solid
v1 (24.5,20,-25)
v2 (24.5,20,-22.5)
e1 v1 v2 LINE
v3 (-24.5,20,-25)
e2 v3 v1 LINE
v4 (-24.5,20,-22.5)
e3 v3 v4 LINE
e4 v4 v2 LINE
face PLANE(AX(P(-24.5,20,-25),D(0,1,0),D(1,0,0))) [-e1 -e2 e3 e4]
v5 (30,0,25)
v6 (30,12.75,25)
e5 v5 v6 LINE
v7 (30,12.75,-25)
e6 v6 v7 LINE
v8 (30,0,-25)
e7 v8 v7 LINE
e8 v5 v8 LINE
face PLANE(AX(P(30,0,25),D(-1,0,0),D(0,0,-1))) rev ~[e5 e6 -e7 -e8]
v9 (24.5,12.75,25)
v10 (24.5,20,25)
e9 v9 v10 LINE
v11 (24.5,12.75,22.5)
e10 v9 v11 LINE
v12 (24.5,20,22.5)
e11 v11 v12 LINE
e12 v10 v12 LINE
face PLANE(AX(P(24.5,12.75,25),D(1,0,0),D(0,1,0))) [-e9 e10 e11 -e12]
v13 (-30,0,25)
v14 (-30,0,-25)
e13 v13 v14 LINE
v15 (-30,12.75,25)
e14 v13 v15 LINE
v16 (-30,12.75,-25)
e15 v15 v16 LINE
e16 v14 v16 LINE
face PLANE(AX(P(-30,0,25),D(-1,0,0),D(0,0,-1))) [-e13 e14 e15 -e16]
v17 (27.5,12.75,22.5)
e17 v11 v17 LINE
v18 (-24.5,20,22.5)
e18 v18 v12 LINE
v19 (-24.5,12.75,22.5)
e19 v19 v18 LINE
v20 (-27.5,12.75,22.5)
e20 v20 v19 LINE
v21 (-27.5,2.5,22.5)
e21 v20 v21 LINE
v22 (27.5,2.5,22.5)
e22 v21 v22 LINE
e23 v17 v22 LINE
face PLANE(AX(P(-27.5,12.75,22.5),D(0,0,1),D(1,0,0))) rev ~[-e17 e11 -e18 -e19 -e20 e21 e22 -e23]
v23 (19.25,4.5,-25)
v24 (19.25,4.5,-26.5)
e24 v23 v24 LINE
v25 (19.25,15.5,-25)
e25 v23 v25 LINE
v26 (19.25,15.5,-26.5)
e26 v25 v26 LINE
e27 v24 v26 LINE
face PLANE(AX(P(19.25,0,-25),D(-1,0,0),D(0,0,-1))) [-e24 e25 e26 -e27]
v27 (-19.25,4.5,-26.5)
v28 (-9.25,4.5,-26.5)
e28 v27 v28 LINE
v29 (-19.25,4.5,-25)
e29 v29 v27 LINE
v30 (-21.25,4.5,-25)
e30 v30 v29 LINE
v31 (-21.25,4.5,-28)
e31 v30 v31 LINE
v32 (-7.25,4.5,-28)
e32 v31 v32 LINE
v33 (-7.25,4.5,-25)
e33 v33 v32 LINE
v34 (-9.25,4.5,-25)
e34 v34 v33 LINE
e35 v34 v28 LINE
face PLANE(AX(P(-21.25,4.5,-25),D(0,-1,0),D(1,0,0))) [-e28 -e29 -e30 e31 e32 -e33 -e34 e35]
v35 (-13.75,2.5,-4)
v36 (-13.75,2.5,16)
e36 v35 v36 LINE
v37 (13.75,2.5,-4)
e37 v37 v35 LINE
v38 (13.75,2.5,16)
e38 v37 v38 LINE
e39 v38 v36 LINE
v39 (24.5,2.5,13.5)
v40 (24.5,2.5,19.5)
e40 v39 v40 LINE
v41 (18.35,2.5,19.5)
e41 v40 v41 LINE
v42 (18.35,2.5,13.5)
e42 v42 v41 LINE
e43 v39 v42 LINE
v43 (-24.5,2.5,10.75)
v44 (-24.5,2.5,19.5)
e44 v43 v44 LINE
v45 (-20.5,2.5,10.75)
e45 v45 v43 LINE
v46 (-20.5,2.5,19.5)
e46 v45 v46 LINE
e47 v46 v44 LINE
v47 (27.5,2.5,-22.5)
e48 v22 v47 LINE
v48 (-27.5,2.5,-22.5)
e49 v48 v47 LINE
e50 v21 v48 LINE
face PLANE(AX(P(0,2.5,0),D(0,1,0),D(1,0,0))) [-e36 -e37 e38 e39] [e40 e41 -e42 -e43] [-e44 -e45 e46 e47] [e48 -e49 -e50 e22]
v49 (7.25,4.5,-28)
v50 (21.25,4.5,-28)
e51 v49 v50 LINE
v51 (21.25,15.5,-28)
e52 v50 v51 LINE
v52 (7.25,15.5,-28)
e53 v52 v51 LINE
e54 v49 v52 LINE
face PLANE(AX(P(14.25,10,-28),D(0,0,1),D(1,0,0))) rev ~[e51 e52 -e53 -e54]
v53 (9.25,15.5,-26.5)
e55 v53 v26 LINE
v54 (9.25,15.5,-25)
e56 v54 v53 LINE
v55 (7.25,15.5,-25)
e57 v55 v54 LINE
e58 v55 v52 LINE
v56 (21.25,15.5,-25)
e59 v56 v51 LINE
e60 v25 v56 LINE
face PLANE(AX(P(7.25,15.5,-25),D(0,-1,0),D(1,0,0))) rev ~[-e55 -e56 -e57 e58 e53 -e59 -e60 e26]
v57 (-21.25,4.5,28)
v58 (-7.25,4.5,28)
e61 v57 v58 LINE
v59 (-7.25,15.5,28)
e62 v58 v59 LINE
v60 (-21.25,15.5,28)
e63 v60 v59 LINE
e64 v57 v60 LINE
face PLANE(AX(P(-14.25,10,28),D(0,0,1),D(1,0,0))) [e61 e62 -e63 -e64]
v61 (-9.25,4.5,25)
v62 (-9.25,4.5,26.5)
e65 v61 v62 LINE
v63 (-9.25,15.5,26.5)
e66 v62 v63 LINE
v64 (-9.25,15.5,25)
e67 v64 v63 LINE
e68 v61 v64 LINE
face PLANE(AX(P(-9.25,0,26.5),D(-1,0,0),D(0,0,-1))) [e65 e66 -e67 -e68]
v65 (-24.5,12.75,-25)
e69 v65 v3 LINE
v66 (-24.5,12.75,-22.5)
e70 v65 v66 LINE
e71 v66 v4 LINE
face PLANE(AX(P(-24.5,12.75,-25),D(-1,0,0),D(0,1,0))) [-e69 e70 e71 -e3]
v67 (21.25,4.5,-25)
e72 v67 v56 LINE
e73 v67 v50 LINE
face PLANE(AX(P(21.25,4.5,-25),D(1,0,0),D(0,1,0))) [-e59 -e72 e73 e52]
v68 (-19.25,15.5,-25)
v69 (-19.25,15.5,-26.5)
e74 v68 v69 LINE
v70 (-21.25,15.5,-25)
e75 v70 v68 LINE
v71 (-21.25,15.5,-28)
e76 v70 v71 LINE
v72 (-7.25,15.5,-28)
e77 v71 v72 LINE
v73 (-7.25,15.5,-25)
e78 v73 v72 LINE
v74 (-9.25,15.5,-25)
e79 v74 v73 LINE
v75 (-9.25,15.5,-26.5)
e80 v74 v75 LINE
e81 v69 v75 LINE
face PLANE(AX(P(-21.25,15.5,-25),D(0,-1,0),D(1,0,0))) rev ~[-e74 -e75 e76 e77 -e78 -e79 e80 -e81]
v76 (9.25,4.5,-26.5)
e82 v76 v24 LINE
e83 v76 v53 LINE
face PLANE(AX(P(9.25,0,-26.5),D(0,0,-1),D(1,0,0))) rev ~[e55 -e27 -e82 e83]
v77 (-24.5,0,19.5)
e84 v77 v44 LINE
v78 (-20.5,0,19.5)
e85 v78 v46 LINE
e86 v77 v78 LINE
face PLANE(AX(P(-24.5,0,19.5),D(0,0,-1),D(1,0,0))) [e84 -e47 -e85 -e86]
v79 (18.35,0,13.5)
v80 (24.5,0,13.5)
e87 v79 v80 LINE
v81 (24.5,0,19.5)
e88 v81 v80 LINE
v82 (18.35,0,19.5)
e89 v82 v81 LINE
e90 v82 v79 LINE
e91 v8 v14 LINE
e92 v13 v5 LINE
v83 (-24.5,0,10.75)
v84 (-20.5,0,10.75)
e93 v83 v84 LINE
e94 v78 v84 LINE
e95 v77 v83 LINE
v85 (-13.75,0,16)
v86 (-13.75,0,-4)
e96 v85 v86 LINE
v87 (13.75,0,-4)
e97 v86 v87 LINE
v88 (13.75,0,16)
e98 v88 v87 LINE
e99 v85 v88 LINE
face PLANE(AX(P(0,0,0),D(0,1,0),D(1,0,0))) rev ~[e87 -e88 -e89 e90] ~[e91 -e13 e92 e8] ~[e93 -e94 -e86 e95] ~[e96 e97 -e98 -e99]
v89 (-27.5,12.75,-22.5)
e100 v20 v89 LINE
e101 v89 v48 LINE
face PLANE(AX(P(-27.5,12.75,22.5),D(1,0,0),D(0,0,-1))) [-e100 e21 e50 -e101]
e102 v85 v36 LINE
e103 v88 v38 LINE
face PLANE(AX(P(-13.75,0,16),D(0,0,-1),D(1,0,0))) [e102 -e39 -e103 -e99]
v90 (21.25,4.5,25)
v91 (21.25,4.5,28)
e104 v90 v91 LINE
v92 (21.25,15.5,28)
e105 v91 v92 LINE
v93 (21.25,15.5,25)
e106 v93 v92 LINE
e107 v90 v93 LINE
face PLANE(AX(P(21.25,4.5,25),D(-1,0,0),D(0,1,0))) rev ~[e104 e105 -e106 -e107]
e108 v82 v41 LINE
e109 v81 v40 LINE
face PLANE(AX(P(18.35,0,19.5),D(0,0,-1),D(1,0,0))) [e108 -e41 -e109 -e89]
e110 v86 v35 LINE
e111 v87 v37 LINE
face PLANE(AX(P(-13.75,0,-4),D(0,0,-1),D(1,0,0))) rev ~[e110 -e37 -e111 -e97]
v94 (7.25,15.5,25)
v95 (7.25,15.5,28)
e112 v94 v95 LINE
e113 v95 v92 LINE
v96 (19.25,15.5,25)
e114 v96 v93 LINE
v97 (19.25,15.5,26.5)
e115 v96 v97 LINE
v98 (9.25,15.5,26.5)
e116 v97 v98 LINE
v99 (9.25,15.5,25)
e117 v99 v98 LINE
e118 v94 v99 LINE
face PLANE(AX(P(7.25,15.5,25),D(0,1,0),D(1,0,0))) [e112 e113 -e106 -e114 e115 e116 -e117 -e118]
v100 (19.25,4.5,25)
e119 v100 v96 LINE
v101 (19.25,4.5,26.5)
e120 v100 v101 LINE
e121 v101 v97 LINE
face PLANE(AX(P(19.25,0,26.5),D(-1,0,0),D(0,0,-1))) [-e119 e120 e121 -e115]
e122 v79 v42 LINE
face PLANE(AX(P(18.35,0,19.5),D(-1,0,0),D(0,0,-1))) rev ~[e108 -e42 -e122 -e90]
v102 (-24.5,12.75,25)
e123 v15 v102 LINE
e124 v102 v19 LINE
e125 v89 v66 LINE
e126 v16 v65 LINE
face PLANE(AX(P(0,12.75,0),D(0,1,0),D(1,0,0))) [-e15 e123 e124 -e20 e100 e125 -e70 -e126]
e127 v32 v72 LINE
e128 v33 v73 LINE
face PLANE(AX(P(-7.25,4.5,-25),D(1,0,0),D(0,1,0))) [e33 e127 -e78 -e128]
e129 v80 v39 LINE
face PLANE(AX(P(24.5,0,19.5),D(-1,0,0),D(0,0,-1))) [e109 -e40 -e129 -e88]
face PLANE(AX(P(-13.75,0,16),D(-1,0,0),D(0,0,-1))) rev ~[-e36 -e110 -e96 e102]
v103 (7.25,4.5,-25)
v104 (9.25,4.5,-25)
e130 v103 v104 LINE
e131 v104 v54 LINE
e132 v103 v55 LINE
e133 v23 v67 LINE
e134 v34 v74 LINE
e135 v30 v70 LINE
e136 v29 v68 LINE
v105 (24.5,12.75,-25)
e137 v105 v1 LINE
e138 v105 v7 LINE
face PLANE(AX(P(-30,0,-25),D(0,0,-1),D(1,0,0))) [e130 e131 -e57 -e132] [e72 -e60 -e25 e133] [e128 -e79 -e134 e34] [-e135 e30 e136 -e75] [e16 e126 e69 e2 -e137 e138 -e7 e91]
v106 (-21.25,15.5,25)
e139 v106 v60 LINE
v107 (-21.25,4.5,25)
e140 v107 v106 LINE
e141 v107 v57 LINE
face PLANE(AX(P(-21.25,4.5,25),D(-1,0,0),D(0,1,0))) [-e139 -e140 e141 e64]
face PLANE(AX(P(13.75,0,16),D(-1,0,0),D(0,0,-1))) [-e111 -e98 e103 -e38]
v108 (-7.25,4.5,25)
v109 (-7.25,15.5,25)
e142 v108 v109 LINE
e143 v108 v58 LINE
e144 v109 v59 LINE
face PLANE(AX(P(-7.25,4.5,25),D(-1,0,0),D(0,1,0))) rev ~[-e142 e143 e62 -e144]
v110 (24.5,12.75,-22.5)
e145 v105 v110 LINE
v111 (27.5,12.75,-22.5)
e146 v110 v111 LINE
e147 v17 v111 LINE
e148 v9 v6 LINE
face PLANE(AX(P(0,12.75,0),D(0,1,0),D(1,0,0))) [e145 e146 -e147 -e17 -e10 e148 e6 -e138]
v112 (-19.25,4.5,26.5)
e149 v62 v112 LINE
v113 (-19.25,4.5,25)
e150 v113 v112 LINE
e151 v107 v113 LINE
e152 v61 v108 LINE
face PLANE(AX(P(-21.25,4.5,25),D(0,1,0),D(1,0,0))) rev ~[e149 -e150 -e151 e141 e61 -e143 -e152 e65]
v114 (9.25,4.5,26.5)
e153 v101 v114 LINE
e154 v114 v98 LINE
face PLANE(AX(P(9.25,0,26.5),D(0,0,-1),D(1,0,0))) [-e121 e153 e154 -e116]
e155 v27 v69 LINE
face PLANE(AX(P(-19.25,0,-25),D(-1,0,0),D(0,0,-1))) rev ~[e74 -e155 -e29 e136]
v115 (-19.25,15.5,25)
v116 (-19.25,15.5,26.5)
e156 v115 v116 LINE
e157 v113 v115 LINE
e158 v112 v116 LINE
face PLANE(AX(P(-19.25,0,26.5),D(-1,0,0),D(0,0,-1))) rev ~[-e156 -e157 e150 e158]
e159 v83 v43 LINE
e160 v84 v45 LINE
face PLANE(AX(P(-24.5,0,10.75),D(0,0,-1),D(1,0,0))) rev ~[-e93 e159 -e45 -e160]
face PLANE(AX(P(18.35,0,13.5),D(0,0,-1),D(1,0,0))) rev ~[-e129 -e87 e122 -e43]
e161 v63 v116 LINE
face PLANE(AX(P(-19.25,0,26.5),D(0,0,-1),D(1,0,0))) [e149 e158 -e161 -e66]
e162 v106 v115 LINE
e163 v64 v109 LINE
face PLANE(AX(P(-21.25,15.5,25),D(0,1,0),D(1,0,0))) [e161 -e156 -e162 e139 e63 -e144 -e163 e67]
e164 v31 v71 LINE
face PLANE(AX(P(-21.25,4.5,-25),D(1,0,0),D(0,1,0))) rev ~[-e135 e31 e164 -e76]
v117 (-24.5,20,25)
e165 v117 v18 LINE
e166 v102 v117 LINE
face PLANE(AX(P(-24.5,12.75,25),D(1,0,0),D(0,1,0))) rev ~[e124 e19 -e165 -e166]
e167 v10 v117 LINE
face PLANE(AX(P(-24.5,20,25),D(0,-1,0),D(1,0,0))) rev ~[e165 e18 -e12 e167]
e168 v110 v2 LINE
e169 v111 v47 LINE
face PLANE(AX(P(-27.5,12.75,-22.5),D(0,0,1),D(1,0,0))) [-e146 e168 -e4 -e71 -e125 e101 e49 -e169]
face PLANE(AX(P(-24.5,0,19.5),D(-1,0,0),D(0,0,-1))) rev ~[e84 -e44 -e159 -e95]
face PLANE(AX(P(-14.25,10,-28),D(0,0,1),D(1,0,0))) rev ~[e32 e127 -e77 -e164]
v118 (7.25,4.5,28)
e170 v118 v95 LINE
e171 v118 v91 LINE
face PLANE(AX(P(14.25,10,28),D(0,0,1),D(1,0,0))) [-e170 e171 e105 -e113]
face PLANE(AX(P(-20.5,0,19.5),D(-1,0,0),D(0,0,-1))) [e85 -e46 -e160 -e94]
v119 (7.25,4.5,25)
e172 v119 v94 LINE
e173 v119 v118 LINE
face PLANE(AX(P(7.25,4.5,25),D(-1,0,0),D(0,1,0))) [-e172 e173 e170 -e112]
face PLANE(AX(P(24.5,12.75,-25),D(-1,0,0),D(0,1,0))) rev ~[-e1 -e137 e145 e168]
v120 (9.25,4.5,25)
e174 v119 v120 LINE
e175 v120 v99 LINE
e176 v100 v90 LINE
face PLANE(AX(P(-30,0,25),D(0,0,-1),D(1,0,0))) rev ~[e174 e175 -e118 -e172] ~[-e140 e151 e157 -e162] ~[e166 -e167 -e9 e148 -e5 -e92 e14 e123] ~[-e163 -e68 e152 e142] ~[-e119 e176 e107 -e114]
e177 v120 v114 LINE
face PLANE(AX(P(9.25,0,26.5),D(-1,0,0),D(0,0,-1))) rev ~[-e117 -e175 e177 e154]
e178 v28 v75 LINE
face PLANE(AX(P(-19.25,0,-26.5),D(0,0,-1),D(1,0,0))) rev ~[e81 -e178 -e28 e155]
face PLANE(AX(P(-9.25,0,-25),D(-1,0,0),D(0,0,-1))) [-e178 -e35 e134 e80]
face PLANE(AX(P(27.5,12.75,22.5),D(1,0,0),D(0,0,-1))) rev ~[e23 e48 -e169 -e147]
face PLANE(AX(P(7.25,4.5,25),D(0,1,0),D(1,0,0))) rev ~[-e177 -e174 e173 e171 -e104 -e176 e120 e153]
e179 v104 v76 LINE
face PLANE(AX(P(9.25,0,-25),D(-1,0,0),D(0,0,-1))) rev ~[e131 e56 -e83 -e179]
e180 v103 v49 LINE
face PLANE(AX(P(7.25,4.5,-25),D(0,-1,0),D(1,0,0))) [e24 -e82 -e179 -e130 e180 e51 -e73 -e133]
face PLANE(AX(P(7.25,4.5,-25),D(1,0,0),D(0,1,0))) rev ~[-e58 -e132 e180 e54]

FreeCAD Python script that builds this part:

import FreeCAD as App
import Part
import Sketcher
from FreeCAD import Vector
Q = App.Units.Quantity


def add_polygon(sketch, points):
    """Adds a closed chain of lines whose ends are joined by coincident constraints."""
    first, n = sketch.GeometryCount, len(points)
    for a, b in zip(points, points[1:] + points[:1]):
        sketch.addGeometry(Part.LineSegment(App.Vector(*a, 0), App.Vector(*b, 0)), False)
    for i in range(n):
        sketch.addConstraint(Sketcher.Constraint("Coincident", first + i, 2, first + (i + 1) % n, 1))

doc = App.newDocument("Part")
body = doc.addObject("PartDesign::Body", "Body")

# Sketch on XZ plane
sketch1 = body.newObject("Sketcher::SketchObject", "Sketch")
sketch1.AttachmentSupport = (doc.getObject("XZ_Plane"), [""])
sketch1.MapMode = "FlatFace"
add_polygon(sketch1, [(-30, -25), (-30, 25), (30, 25), (30, -25)])  # lines 0-3
sketch1.addConstraint(Sketcher.Constraint("Vertical", 0))
sketch1.addConstraint(Sketcher.Constraint("Horizontal", 1))
sketch1.addConstraint(Sketcher.Constraint("Vertical", 2))
sketch1.addConstraint(Sketcher.Constraint("Horizontal", 3))
sketch1.addConstraint(Sketcher.Constraint("Symmetric", 0, 2, 2, 2, -1, 1))
sketch1.addConstraint(Sketcher.Constraint("DistanceX", 1, 1, 1, 2, Q("60 mm")))
sketch1.addConstraint(Sketcher.Constraint("DistanceY", 0, 1, 0, 2, Q("50 mm")))
pad1 = body.newObject("PartDesign::Pad", "Pad")
pad1.Profile = sketch1
pad1.Length = 12.75
pad1.Reversed = True

# Sketch on XZ plane
sketch2 = body.newObject("Sketcher::SketchObject", "Sketch001")
sketch2.AttachmentSupport = (doc.getObject("XZ_Plane"), [""])
sketch2.MapMode = "FlatFace"
sketch2.AttachmentOffset = App.Placement(Vector(0, 0, -12.75), App.Rotation())
add_polygon(sketch2, [(-28, -22), (-28, 22), (28, 22), (28, -22)])  # lines 0-3
sketch2.addConstraint(Sketcher.Constraint("Vertical", 0))
sketch2.addConstraint(Sketcher.Constraint("Horizontal", 1))
sketch2.addConstraint(Sketcher.Constraint("Vertical", 2))
sketch2.addConstraint(Sketcher.Constraint("Horizontal", 3))
sketch2.addConstraint(Sketcher.Constraint("Symmetric", 0, 2, 2, 2, -1, 1))
sketch2.addConstraint(Sketcher.Constraint("DistanceX", 1, 1, 1, 2, Q("55 mm")))
sketch2.addConstraint(Sketcher.Constraint("DistanceY", 0, 1, 0, 2, Q("45 mm")))
pocket1 = body.newObject("PartDesign::Pocket", "Pocket")
pocket1.Profile = sketch2
pocket1.Length = 10.25
pocket1.Reversed = True

# Sketch on XY plane
sketch3 = body.newObject("Sketcher::SketchObject", "Sketch002")
sketch3.AttachmentSupport = (doc.getObject("XY_Plane"), [""])
sketch3.MapMode = "FlatFace"
sketch3.AttachmentOffset = App.Placement(Vector(0, 0, 25), App.Rotation())
add_polygon(sketch3, [(-24, 20), (-24, 13), (24, 13), (24, 20)])  # lines 0-3
sketch3.addConstraint(Sketcher.Constraint("Vertical", 0))
sketch3.addConstraint(Sketcher.Constraint("Horizontal", 1))
sketch3.addConstraint(Sketcher.Constraint("Vertical", 2))
sketch3.addConstraint(Sketcher.Constraint("Horizontal", 3))
sketch3.addConstraint(Sketcher.Constraint("DistanceX", 1, 1, 1, 2, Q("49 mm")))
sketch3.addConstraint(Sketcher.Constraint("DistanceY", -1, 1, 2, 2, Q("20 mm")))
sketch3.addConstraint(Sketcher.Constraint("DistanceY", 0, 2, 0, 1, Q("7.25 mm")))
sketch3.addConstraint(Sketcher.Constraint("DistanceX", 0, 2, -1, 1, Q("24.5 mm")))
pad2 = body.newObject("PartDesign::Pad", "Pad001")
pad2.Profile = sketch3
pad2.Length = 2.5
pad2.Reversed = True

# Sketch on XY plane
sketch4 = body.newObject("Sketcher::SketchObject", "Sketch003")
sketch4.AttachmentSupport = (doc.getObject("XY_Plane"), [""])
sketch4.MapMode = "FlatFace"
sketch4.AttachmentOffset = App.Placement(Vector(0, 0, -25), App.Rotation())
add_polygon(sketch4, [(-24, 20), (-24, 13), (24, 13), (24, 20)])  # lines 0-3
sketch4.addConstraint(Sketcher.Constraint("Vertical", 0))
sketch4.addConstraint(Sketcher.Constraint("Horizontal", 1))
sketch4.addConstraint(Sketcher.Constraint("Vertical", 2))
sketch4.addConstraint(Sketcher.Constraint("Horizontal", 3))
sketch4.addConstraint(Sketcher.Constraint("DistanceX", 1, 1, 1, 2, Q("49 mm")))
sketch4.addConstraint(Sketcher.Constraint("DistanceY", -1, 1, 2, 2, Q("20 mm")))
sketch4.addConstraint(Sketcher.Constraint("DistanceY", 0, 2, 0, 1, Q("7.25 mm")))
sketch4.addConstraint(Sketcher.Constraint("DistanceX", 0, 2, -1, 1, Q("24.5 mm")))
pad3 = body.newObject("PartDesign::Pad", "Pad002")
pad3.Profile = sketch4
pad3.Length = 2.5

# Sketch on XZ plane
sketch5 = body.newObject("Sketcher::SketchObject", "Sketch004")
sketch5.AttachmentSupport = (doc.getObject("XZ_Plane"), [""])
sketch5.MapMode = "FlatFace"
add_polygon(sketch5, [(-14, -4), (-14, 16), (14, 16), (14, -4)])  # lines 0-3
sketch5.addConstraint(Sketcher.Constraint("Vertical", 0))
sketch5.addConstraint(Sketcher.Constraint("Horizontal", 1))
sketch5.addConstraint(Sketcher.Constraint("Vertical", 2))
sketch5.addConstraint(Sketcher.Constraint("Horizontal", 3))
sketch5.addConstraint(Sketcher.Constraint("DistanceY", 0, 1, 0, 2, Q("20 mm")))
sketch5.addConstraint(Sketcher.Constraint("DistanceX", 1, 1, 1, 2, Q("27.5 mm")))
sketch5.addConstraint(Sketcher.Constraint("DistanceY", -1, 1, 0, 2, Q("16 mm")))
sketch5.addConstraint(Sketcher.Constraint("DistanceX", 0, 2, -1, 1, Q("13.75 mm")))
pocket2 = body.newObject("PartDesign::Pocket", "Pocket001")
pocket2.Profile = sketch5
pocket2.Length = 10

# Sketch on XY plane
sketch6 = body.newObject("Sketcher::SketchObject", "Sketch005")
sketch6.AttachmentSupport = (doc.getObject("XY_Plane"), [""])
sketch6.MapMode = "FlatFace"
sketch6.AttachmentOffset = App.Placement(Vector(0, 0, 25), App.Rotation())
add_polygon(sketch6, [(-21, 16), (-21, 4), (-7, 4), (-7, 16)])  # lines 0-3
add_polygon(sketch6, [(7, 16), (7, 4), (21, 4), (21, 16)])  # lines 4-7
sketch6.addConstraint(Sketcher.Constraint("Vertical", 0))
sketch6.addConstraint(Sketcher.Constraint("Horizontal", 1))
sketch6.addConstraint(Sketcher.Constraint("Vertical", 2))
sketch6.addConstraint(Sketcher.Constraint("Horizontal", 3))
sketch6.addConstraint(Sketcher.Constraint("Vertical", 4))
sketch6.addConstraint(Sketcher.Constraint("Horizontal", 5))
sketch6.addConstraint(Sketcher.Constraint("Vertical", 6))
sketch6.addConstraint(Sketcher.Constraint("Horizontal", 7))
sketch6.addConstraint(Sketcher.Constraint("Symmetric", 1, 2, 4, 2, -2))
sketch6.addConstraint(Sketcher.Constraint("Symmetric", 3, 2, 6, 2, -2))
sketch6.addConstraint(Sketcher.Constraint("DistanceX", 1, 1, 1, 2, Q("14 mm")))
sketch6.addConstraint(Sketcher.Constraint("DistanceY", 0, 2, 0, 1, Q("11 mm")))
sketch6.addConstraint(Sketcher.Constraint("DistanceY", -1, 1, 0, 2, Q("4.5 mm")))
sketch6.addConstraint(Sketcher.Constraint("DistanceX", 1, 2, 4, 2, Q("14.5 mm")))
pad4 = body.newObject("PartDesign::Pad", "Pad003")
pad4.Profile = sketch6
pad4.Length = 3

# Sketch on XY plane
sketch7 = body.newObject("Sketcher::SketchObject", "Sketch006")
sketch7.AttachmentSupport = (doc.getObject("XY_Plane"), [""])
sketch7.MapMode = "FlatFace"
sketch7.AttachmentOffset = App.Placement(Vector(0, 0, -25), App.Rotation())
add_polygon(sketch7, [(-21, 16), (-21, 4), (-7, 4), (-7, 16)])  # lines 0-3
add_polygon(sketch7, [(7, 16), (7, 4), (21, 4), (21, 16)])  # lines 4-7
sketch7.addConstraint(Sketcher.Constraint("Vertical", 0))
sketch7.addConstraint(Sketcher.Constraint("Horizontal", 1))
sketch7.addConstraint(Sketcher.Constraint("Vertical", 2))
sketch7.addConstraint(Sketcher.Constraint("Horizontal", 3))
sketch7.addConstraint(Sketcher.Constraint("Vertical", 4))
sketch7.addConstraint(Sketcher.Constraint("Horizontal", 5))
sketch7.addConstraint(Sketcher.Constraint("Vertical", 6))
sketch7.addConstraint(Sketcher.Constraint("Horizontal", 7))
sketch7.addConstraint(Sketcher.Constraint("Symmetric", 1, 2, 4, 2, -2))
sketch7.addConstraint(Sketcher.Constraint("Symmetric", 3, 2, 6, 2, -2))
sketch7.addConstraint(Sketcher.Constraint("DistanceX", 1, 1, 1, 2, Q("14 mm")))
sketch7.addConstraint(Sketcher.Constraint("DistanceY", 0, 2, 0, 1, Q("11 mm")))
sketch7.addConstraint(Sketcher.Constraint("DistanceY", -1, 1, 0, 2, Q("4.5 mm")))
sketch7.addConstraint(Sketcher.Constraint("DistanceX", 1, 2, 4, 2, Q("14.5 mm")))
pad5 = body.newObject("PartDesign::Pad", "Pad004")
pad5.Profile = sketch7
pad5.Length = 3
pad5.Reversed = True

# Sketch on XZ plane
sketch8 = body.newObject("Sketcher::SketchObject", "Sketch007")
sketch8.AttachmentSupport = (doc.getObject("XZ_Plane"), [""])
sketch8.MapMode = "FlatFace"
add_polygon(sketch8, [(-19.2, -26.5), (-19.2, -25), (-9.2, -25), (-9.2, -26.5)])  # lines 0-3
add_polygon(sketch8, [(9.2, -26.5), (9.2, -25), (19.2, -25), (19.2, -26.5)])  # lines 4-7
add_polygon(sketch8, [(9.2, 25), (9.2, 26.5), (19.2, 26.5), (19.2, 25)])  # lines 8-11
add_polygon(sketch8, [(-19.2, 25), (-19.2, 26.5), (-9.2, 26.5), (-9.2, 25)])  # lines 12-15
sketch8.addConstraint(Sketcher.Constraint("Vertical", 0))
sketch8.addConstraint(Sketcher.Constraint("Horizontal", 1))
sketch8.addConstraint(Sketcher.Constraint("Vertical", 2))
sketch8.addConstraint(Sketcher.Constraint("Horizontal", 3))
sketch8.addConstraint(Sketcher.Constraint("Vertical", 4))
sketch8.addConstraint(Sketcher.Constraint("Horizontal", 5))
sketch8.addConstraint(Sketcher.Constraint("Vertical", 6))
sketch8.addConstraint(Sketcher.Constraint("Horizontal", 7))
sketch8.addConstraint(Sketcher.Constraint("Vertical", 8))
sketch8.addConstraint(Sketcher.Constraint("Horizontal", 9))
sketch8.addConstraint(Sketcher.Constraint("Vertical", 10))
sketch8.addConstraint(Sketcher.Constraint("Horizontal", 11))
sketch8.addConstraint(Sketcher.Constraint("Vertical", 12))
sketch8.addConstraint(Sketcher.Constraint("Horizontal", 13))
sketch8.addConstraint(Sketcher.Constraint("Vertical", 14))
sketch8.addConstraint(Sketcher.Constraint("Horizontal", 15))
sketch8.addConstraint(Sketcher.Constraint("Symmetric", 2, 2, 8, 2, -1, 1))
sketch8.addConstraint(Sketcher.Constraint("Symmetric", 0, 2, 10, 2, -1, 1))
sketch8.addConstraint(Sketcher.Constraint("Symmetric", 6, 2, 12, 2, -1, 1))
sketch8.addConstraint(Sketcher.Constraint("Symmetric", 4, 2, 14, 2, -1, 1))
sketch8.addConstraint(Sketcher.Constraint("Symmetric", 1, 2, 4, 2, -2))
sketch8.addConstraint(Sketcher.Constraint("Symmetric", 3, 2, 6, 2, -2))
sketch8.addConstraint(Sketcher.Constraint("DistanceX", 1, 1, 1, 2, Q("10 mm")))
sketch8.addConstraint(Sketcher.Constraint("DistanceY", 0, 1, 0, 2, Q("1.5 mm")))
sketch8.addConstraint(Sketcher.Constraint("DistanceY", 0, 2, -1, 1, Q("25 mm")))
sketch8.addConstraint(Sketcher.Constraint("DistanceX", 1, 2, 4, 2, Q("18.5 mm")))
pocket3 = body.newObject("PartDesign::Pocket", "Pocket002")
pocket3.Profile = sketch8
pocket3.Length = 43.5

# Sketch on XZ plane
sketch9 = body.newObject("Sketcher::SketchObject", "Sketch008")
sketch9.AttachmentSupport = (doc.getObject("XZ_Plane"), [""])
sketch9.MapMode = "FlatFace"
add_polygon(sketch9, [(-24.5, 10.8), (-24.5, 19.5), (-20.5, 19.5), (-20.5, 10.8)])  # lines 0-3
add_polygon(sketch9, [(18.4, 13.5), (18.4, 19.5), (24.5, 19.5), (24.5, 13.5)])  # lines 4-7
sketch9.addConstraint(Sketcher.Constraint("Vertical", 0))
sketch9.addConstraint(Sketcher.Constraint("Horizontal", 1))
sketch9.addConstraint(Sketcher.Constraint("Vertical", 2))
sketch9.addConstraint(Sketcher.Constraint("Horizontal", 3))
sketch9.addConstraint(Sketcher.Constraint("Vertical", 4))
sketch9.addConstraint(Sketcher.Constraint("Horizontal", 5))
sketch9.addConstraint(Sketcher.Constraint("Vertical", 6))
sketch9.addConstraint(Sketcher.Constraint("Horizontal", 7))
sketch9.addConstraint(Sketcher.Constraint("Symmetric", 0, 2, 5, 2, -2))
sketch9.addConstraint(Sketcher.Constraint("DistanceX", 1, 1, 1, 2, Q("4 mm")))
sketch9.addConstraint(Sketcher.Constraint("DistanceY", 4, 1, 4, 2, Q("6 mm")))
sketch9.addConstraint(Sketcher.Constraint("DistanceX", 1, 2, 5, 2, Q("45 mm")))
sketch9.addConstraint(Sketcher.Constraint("DistanceX", 5, 1, 5, 2, Q("6.15 mm")))
sketch9.addConstraint(Sketcher.Constraint("DistanceY", 0, 1, 0, 2, Q("8.75 mm")))
sketch9.addConstraint(Sketcher.Constraint("DistanceY", -1, 1, 0, 2, Q("19.5 mm")))
pocket4 = body.newObject("PartDesign::Pocket", "Pocket003")
pocket4.Profile = sketch9
pocket4.Length = 43.5

doc.recompute()
